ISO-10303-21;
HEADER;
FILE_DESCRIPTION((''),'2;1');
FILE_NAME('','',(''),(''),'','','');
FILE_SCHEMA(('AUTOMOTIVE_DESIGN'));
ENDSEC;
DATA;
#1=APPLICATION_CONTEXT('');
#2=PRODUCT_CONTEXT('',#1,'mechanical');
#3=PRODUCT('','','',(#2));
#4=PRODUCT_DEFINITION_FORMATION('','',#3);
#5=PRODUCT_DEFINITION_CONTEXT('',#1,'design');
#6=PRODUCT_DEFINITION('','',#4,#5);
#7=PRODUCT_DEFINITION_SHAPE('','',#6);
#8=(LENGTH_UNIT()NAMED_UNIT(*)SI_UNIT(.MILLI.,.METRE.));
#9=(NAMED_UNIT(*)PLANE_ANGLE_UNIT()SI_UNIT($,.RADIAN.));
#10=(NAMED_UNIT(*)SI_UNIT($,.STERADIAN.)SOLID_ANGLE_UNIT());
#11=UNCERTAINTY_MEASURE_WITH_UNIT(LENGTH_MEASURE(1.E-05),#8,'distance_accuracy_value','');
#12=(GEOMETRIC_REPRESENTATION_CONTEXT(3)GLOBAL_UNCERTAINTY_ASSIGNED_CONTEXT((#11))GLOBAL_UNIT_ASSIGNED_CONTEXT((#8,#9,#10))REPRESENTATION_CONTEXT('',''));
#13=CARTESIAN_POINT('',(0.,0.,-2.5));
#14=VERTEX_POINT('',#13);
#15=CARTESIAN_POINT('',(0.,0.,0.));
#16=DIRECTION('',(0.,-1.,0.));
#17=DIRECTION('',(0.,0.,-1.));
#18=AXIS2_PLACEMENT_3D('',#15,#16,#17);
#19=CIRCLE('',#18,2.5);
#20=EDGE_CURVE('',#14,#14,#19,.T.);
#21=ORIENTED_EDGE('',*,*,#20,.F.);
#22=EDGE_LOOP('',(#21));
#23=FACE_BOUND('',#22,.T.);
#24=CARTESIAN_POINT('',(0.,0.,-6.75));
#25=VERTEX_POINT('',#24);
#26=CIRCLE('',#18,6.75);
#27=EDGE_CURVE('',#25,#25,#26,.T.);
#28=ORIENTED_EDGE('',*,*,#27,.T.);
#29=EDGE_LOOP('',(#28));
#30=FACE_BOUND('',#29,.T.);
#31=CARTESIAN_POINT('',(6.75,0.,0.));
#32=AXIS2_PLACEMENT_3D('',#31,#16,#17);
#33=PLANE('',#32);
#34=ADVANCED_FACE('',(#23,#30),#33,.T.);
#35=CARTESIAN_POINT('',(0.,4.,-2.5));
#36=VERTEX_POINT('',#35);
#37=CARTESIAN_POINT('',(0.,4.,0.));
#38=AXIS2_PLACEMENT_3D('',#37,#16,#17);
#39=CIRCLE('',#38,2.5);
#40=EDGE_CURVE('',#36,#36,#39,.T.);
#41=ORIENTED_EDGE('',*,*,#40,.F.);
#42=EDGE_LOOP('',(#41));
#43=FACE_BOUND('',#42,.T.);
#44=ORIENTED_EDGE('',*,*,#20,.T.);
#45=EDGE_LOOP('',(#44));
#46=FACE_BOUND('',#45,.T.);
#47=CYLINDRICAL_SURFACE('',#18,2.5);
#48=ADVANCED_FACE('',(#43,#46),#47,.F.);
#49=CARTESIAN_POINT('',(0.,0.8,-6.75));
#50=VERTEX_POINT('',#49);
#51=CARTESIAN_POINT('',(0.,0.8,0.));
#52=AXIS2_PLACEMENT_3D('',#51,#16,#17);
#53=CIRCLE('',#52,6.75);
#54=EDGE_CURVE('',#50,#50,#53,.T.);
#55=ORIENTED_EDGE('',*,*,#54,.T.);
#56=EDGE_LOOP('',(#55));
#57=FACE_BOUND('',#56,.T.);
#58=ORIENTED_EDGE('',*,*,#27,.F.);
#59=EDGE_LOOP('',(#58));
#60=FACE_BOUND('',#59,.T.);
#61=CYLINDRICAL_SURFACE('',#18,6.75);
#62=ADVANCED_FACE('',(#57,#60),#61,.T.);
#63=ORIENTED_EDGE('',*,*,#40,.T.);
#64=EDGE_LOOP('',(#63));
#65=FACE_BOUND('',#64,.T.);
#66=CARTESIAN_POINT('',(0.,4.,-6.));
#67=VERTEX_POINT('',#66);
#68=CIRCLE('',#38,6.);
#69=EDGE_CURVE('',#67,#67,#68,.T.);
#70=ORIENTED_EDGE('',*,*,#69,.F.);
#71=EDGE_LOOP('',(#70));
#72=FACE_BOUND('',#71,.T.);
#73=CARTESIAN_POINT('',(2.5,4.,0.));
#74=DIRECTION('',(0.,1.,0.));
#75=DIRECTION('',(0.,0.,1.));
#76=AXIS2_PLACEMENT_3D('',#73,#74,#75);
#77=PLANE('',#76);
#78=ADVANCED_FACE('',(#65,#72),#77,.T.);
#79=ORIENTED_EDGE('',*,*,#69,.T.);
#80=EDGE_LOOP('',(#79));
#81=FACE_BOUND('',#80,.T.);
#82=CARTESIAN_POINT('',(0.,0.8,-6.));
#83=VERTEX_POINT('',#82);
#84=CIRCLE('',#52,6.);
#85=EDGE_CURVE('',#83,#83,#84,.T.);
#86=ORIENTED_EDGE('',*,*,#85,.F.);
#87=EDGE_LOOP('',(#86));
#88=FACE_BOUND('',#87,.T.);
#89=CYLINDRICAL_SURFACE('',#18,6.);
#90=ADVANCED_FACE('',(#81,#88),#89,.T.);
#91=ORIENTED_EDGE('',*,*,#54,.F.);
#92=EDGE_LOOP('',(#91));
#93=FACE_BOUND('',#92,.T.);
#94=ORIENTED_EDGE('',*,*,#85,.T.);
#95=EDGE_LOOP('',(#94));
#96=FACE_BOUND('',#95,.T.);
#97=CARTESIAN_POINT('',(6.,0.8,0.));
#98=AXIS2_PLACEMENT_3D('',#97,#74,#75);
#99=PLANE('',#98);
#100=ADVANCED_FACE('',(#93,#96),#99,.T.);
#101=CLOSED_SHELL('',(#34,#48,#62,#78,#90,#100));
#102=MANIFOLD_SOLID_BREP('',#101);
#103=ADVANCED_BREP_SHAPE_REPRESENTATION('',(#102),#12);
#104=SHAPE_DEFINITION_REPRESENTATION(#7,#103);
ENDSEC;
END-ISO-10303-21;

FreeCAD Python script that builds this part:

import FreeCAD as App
import Part
import Sketcher

V = App.Vector
Q = App.Units.Quantity


def add_polygon(sketch, points):
    """Adds a closed chain of lines whose ends are joined by coincident constraints."""
    first, n = sketch.GeometryCount, len(points)
    for a, b in zip(points, points[1:] + points[:1]):
        sketch.addGeometry(Part.LineSegment(App.Vector(*a, 0), App.Vector(*b, 0)), False)
    for i in range(n):
        sketch.addConstraint(Sketcher.Constraint("Coincident", first + i, 2, first + (i + 1) % n, 1))

doc = App.newDocument("Part")
params = doc.addObject("Spreadsheet::Sheet", "Params")
for row, (alias, value) in enumerate([
    ("sketch1_height", "4 mm"),
    ("sketch1_width", "3.5 mm"),
    ("sketch1_height2", "0.8 mm"),
    ("sketch1_width2", "4.25 mm"),
    ("revolution_angle", "360 deg"),
], start=1):
    params.set(f"A{row}", alias)
    params.set(f"B{row}", "=" + value)
    params.setAlias(f"B{row}", alias)

body = doc.addObject("PartDesign::Body", "Body")

# Sketch on XY plane
sketch1 = doc.addObject("Sketcher::SketchObject", "Sketch")
body.addObject(sketch1)
sketch1.AttachmentSupport = (doc.XY_Plane, [""])
sketch1.MapMode = "FlatFace"
add_polygon(sketch1, [(2.5, 4), (2.5, 0), (6.8, 0), (6.8, 0.8), (6, 0.8), (6, 4)])  # lines 0-5
sketch1.addConstraint([
    Sketcher.Constraint("Vertical", 0),
    Sketcher.Constraint("Horizontal", 1),
    Sketcher.Constraint("Vertical", 2),
    Sketcher.Constraint("Horizontal", 3),
    Sketcher.Constraint("Vertical", 4),
    Sketcher.Constraint("Horizontal", 5),
    Sketcher.Constraint("PointOnObject", 0, 2, -1),
    Sketcher.Constraint("DistanceY", 0, 2, 0, 1, Q("4 mm")),
    Sketcher.Constraint("DistanceX", 5, 2, 5, 1, Q("3.5 mm")),
    Sketcher.Constraint("DistanceY", 2, 1, 2, 2, Q("0.8 mm")),
    Sketcher.Constraint("DistanceX", -1, 1, 3, 2, Q("6 mm")),
    Sketcher.Constraint("DistanceX", 1, 1, 1, 2, Q("4.25 mm")),
])
sketch1.setExpression("Constraints[13]", "Params.sketch1_height")
sketch1.setExpression("Constraints[14]", "Params.sketch1_width")
sketch1.setExpression("Constraints[15]", "Params.sketch1_height2")
sketch1.setExpression("Constraints[17]", "Params.sketch1_width2")
revolution = doc.addObject("PartDesign::Revolution", "Revolution")
body.addObject(revolution)
revolution.Profile = sketch1
revolution.ReferenceAxis = (sketch1, ["V_Axis"])
revolution.setExpression("Angle", "Params.revolution_angle")

doc.recompute()
